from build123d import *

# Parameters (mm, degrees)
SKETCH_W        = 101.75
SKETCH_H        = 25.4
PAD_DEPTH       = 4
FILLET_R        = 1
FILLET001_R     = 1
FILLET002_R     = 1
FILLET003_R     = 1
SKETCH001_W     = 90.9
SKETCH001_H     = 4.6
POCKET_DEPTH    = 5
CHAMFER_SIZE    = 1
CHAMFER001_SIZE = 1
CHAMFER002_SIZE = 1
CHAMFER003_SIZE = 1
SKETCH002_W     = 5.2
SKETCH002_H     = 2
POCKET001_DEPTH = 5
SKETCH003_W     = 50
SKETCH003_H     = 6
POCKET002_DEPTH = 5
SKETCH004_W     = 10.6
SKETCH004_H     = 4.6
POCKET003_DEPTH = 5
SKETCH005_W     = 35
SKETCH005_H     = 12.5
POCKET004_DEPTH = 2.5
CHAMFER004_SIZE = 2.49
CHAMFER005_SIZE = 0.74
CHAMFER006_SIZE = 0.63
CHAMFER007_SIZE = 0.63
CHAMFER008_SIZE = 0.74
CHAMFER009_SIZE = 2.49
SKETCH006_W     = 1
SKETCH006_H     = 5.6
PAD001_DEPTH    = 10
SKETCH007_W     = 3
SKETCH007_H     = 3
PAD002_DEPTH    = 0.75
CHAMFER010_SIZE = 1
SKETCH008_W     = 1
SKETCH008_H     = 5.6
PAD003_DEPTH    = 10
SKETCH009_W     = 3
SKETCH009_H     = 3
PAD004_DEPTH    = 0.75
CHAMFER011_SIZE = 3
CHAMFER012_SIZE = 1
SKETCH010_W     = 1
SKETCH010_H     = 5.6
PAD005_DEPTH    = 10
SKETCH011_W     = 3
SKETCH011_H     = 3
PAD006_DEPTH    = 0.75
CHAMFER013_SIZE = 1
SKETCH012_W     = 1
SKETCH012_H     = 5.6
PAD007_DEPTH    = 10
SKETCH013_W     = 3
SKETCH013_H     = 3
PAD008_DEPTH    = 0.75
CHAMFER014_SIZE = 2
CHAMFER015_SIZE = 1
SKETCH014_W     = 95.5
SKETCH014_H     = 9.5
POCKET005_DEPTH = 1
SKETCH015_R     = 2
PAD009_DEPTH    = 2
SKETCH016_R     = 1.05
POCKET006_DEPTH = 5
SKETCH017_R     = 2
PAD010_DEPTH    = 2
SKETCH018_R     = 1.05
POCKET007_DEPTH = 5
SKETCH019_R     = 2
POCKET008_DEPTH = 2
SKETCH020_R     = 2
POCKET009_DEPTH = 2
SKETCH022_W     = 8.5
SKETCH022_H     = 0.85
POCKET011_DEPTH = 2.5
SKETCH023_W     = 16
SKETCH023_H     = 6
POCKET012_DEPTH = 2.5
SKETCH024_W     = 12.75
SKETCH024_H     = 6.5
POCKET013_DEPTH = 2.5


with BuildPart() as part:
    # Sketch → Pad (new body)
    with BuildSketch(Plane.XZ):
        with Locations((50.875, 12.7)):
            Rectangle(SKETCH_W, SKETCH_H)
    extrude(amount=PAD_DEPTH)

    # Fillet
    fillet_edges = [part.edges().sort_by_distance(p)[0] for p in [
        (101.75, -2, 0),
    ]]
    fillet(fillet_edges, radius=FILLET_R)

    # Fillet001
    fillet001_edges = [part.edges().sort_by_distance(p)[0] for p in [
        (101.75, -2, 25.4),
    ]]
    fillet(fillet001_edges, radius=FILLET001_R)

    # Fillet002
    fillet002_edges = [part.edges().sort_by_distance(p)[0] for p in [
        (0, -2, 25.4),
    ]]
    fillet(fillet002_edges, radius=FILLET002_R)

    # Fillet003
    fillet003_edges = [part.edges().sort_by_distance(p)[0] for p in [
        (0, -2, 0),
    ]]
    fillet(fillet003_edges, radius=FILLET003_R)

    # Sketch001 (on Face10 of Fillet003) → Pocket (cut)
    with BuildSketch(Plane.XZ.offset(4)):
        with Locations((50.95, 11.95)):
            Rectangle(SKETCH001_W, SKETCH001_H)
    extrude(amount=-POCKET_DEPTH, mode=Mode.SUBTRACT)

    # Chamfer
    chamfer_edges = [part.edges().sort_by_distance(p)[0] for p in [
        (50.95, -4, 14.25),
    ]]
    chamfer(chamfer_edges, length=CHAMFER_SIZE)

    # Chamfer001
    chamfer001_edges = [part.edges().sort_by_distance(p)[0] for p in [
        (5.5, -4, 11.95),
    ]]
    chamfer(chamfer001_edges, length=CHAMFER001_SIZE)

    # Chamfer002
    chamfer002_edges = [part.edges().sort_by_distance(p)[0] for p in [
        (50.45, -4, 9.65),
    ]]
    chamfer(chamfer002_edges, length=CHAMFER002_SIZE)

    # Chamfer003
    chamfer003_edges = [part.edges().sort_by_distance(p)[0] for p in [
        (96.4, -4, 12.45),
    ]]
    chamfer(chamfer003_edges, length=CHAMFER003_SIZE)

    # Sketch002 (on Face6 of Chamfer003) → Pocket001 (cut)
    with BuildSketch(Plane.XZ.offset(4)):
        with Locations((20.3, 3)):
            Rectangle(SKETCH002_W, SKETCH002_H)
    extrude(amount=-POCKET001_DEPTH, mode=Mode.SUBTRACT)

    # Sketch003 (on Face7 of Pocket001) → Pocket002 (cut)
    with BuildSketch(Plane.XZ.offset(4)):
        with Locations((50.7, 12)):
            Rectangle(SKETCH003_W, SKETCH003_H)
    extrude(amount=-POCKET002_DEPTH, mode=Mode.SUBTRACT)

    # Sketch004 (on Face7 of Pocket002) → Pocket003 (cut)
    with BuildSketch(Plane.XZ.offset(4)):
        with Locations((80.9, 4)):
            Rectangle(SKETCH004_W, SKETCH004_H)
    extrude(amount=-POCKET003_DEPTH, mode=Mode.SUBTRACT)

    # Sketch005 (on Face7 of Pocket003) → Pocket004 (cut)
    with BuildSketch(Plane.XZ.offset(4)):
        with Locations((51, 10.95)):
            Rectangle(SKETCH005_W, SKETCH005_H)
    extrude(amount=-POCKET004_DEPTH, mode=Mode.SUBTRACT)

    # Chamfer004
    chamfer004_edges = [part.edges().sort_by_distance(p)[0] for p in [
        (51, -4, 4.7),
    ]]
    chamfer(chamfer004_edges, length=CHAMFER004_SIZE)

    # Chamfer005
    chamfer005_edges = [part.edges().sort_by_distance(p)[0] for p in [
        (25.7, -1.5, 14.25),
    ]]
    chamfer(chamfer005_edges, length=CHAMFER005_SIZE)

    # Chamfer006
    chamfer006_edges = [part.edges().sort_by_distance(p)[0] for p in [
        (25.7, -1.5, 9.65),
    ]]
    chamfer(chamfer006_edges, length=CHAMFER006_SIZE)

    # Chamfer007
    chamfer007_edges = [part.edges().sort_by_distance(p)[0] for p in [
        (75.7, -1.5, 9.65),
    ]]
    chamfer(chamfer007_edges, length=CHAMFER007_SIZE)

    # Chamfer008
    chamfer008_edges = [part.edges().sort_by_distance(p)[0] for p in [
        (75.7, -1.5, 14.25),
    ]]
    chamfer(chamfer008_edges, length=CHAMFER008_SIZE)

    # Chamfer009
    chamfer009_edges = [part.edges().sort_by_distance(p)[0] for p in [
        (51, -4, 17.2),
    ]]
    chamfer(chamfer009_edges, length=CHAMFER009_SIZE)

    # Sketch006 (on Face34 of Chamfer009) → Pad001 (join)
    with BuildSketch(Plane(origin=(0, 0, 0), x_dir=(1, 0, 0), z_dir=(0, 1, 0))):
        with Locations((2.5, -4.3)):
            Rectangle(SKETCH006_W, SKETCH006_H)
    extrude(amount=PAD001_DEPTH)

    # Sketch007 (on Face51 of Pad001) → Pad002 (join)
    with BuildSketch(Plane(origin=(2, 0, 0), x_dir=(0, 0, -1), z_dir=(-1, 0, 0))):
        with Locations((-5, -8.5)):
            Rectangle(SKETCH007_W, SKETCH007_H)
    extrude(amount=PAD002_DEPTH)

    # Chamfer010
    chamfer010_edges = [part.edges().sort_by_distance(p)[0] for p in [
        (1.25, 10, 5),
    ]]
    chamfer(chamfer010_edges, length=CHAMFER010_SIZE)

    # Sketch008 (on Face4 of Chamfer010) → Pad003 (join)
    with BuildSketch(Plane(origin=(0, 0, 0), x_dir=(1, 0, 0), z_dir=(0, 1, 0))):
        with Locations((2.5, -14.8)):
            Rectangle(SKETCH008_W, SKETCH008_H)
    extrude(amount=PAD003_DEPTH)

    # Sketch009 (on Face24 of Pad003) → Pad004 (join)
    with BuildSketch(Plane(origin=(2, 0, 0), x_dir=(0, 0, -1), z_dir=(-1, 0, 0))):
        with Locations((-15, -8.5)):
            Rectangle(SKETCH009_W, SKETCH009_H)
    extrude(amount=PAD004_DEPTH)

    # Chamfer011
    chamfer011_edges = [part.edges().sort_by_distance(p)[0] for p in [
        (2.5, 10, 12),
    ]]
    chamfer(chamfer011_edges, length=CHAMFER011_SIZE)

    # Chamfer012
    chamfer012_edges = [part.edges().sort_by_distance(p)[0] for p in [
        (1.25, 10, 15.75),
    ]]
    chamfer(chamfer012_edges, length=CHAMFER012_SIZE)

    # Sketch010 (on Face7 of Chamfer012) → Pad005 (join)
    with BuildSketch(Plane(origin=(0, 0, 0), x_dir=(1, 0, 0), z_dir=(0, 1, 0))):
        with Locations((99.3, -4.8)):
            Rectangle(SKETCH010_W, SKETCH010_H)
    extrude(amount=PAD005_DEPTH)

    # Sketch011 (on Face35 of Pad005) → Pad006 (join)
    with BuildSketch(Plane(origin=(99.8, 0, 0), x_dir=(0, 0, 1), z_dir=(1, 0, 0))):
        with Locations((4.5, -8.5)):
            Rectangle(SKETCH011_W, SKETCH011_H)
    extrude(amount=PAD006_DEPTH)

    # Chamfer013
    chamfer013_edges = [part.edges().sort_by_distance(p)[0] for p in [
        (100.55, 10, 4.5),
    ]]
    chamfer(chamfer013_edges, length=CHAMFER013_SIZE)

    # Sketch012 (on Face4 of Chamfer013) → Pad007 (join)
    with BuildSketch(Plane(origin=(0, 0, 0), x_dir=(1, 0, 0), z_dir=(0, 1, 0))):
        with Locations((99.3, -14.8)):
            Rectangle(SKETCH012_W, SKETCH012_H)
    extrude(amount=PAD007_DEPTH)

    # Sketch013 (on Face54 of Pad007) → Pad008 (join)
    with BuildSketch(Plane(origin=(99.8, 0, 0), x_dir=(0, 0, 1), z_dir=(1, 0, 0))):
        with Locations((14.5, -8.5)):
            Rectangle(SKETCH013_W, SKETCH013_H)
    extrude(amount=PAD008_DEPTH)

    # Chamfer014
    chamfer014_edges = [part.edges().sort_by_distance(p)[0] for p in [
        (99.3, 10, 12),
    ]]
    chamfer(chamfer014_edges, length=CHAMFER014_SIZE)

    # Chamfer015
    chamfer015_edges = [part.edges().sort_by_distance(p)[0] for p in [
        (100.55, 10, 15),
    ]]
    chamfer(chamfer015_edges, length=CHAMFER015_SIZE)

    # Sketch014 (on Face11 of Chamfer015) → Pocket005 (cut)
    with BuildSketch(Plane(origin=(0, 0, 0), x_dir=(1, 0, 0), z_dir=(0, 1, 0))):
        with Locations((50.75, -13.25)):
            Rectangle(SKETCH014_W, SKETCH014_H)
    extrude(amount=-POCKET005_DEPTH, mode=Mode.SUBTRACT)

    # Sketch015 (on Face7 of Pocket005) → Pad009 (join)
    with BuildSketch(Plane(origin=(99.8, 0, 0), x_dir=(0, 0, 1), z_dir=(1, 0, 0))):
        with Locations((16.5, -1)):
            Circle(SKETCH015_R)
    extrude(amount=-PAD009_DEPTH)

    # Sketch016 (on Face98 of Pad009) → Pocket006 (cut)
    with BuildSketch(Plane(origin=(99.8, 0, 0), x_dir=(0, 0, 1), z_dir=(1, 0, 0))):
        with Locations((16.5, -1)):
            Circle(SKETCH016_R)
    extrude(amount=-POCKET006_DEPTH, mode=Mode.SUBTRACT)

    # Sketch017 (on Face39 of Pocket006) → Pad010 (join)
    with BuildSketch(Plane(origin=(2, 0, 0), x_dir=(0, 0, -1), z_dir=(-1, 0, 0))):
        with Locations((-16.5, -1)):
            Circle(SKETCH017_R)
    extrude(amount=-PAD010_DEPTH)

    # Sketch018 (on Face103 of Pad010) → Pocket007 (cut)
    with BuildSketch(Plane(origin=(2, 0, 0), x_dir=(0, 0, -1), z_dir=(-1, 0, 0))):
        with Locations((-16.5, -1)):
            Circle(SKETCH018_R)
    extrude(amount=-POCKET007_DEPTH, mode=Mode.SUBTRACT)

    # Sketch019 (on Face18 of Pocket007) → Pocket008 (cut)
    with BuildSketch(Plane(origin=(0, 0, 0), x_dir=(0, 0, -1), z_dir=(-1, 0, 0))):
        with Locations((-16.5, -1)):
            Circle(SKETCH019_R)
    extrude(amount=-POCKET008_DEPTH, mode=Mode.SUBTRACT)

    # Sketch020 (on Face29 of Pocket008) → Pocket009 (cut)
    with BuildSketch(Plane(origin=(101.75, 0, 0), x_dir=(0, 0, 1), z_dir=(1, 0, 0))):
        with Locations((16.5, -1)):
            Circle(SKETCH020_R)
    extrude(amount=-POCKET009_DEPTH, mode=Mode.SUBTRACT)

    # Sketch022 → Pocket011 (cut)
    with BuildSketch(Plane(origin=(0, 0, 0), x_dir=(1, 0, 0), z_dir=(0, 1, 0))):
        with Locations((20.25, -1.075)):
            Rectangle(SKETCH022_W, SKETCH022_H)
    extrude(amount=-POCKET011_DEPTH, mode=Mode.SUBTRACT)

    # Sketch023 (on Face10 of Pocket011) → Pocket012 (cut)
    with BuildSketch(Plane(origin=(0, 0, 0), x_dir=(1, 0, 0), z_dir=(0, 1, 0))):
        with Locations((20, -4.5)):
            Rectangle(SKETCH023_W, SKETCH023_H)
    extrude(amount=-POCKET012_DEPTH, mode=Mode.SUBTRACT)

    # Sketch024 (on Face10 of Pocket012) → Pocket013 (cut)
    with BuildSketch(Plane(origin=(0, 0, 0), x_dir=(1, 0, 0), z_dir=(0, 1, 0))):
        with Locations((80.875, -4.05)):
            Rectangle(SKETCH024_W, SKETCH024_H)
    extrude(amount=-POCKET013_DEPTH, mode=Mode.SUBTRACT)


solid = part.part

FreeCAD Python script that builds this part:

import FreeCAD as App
import Part
import Sketcher
from FreeCAD import Vector


def edges_at(feature, points):
    """Names of the edges that pass closest to the given points."""
    edges = feature.Shape.Edges
    near = lambda p: min(range(len(edges)), key=lambda i: edges[i].distToShape(Part.Vertex(*p))[0])
    return sorted({f"Edge{near(p) + 1}" for p in points})

doc = App.newDocument("Part")
body = doc.addObject("PartDesign::Body", "Body")

# Sketch on XZ plane
sketch1 = body.newObject("Sketcher::SketchObject", "Sketch")
sketch1.AttachmentSupport = (doc.getObject("XZ_Plane"), [""])
sketch1.MapMode = "FlatFace"
sketch1.addGeometry([
    Part.LineSegment(Vector(0, 25.4, 0), Vector(0, 0, 0)),
    Part.LineSegment(Vector(0, 0, 0), Vector(101.75, 0, 0)),
    Part.LineSegment(Vector(101.75, 0, 0), Vector(101.75, 25.4, 0)),
    Part.LineSegment(Vector(101.75, 25.4, 0), Vector(0, 25.4, 0)),
], False)
sketch1.addConstraint([
    Sketcher.Constraint("Coincident", 0, 2, 1, 1),
    Sketcher.Constraint("Coincident", 1, 2, 2, 1),
    Sketcher.Constraint("Coincident", 2, 2, 3, 1),
    Sketcher.Constraint("Coincident", 3, 2, 0, 1),
    Sketcher.Constraint("Vertical", 0),
    Sketcher.Constraint("Horizontal", 1),
    Sketcher.Constraint("Vertical", 2),
    Sketcher.Constraint("Horizontal", 3),
    Sketcher.Constraint("Coincident", 0, 2, -1, 1),
    Sketcher.Constraint("DistanceY", 0, 2, 0, 1, 25.4),
    Sketcher.Constraint("DistanceX", 1, 1, 1, 2, 101.75),
])
pad1 = body.newObject("PartDesign::Pad", "Pad")
pad1.Profile = sketch1
pad1.Length = 4
doc.recompute()

fillet = body.newObject("PartDesign::Fillet", "Fillet")
fillet.Base = (pad1, edges_at(pad1, [(101.75, -2, 0)]))
fillet.Radius = 1
doc.recompute()

fillet2 = body.newObject("PartDesign::Fillet", "Fillet001")
fillet2.Base = (fillet, edges_at(fillet, [(101.75, -2, 25.4)]))
fillet2.Radius = 1
doc.recompute()

fillet3 = body.newObject("PartDesign::Fillet", "Fillet002")
fillet3.Base = (fillet2, edges_at(fillet2, [(0, -2, 25.4)]))
fillet3.Radius = 1
doc.recompute()

fillet4 = body.newObject("PartDesign::Fillet", "Fillet003")
fillet4.Base = (fillet3, edges_at(fillet3, [(0, -2, 0)]))
fillet4.Radius = 1

# Sketch on XZ plane
sketch2 = body.newObject("Sketcher::SketchObject", "Sketch001")
sketch2.AttachmentSupport = (doc.getObject("XZ_Plane"), [""])
sketch2.MapMode = "FlatFace"
sketch2.AttachmentOffset = App.Placement(Vector(0, 0, 4), App.Rotation())
sketch2.addGeometry([
    Part.LineSegment(Vector(5.5, 14.25, 0), Vector(5.5, 9.65, 0)),
    Part.LineSegment(Vector(5.5, 9.65, 0), Vector(96.4, 9.65, 0)),
    Part.LineSegment(Vector(96.4, 9.65, 0), Vector(96.4, 14.25, 0)),
    Part.LineSegment(Vector(96.4, 14.25, 0), Vector(5.5, 14.25, 0)),
], False)
sketch2.addConstraint([
    Sketcher.Constraint("Coincident", 0, 2, 1, 1),
    Sketcher.Constraint("Coincident", 1, 2, 2, 1),
    Sketcher.Constraint("Coincident", 2, 2, 3, 1),
    Sketcher.Constraint("Coincident", 3, 2, 0, 1),
    Sketcher.Constraint("Vertical", 0),
    Sketcher.Constraint("Horizontal", 1),
    Sketcher.Constraint("Vertical", 2),
    Sketcher.Constraint("Horizontal", 3),
    Sketcher.Constraint("DistanceX", 1, 1, 1, 2, 90.9),
    Sketcher.Constraint("DistanceY", 0, 2, 0, 1, 4.6),
    Sketcher.Constraint("DistanceX", -1, 1, 0, 2, 5.5),
    Sketcher.Constraint("DistanceY", -1, 1, 0, 2, 9.65),
])
pocket1 = body.newObject("PartDesign::Pocket", "Pocket")
pocket1.Profile = sketch2
pocket1.Length = 5
doc.recompute()

chamfer = body.newObject("PartDesign::Chamfer", "Chamfer")
chamfer.Base = (pocket1, edges_at(pocket1, [(50.95, -4, 14.25)]))
chamfer.Size = 1
doc.recompute()

chamfer2 = body.newObject("PartDesign::Chamfer", "Chamfer001")
chamfer2.Base = (chamfer, edges_at(chamfer, [(5.5, -4, 12.45)]))
chamfer2.Size = 1
doc.recompute()

chamfer3 = body.newObject("PartDesign::Chamfer", "Chamfer002")
chamfer3.Base = (chamfer2, edges_at(chamfer2, [(50.45, -4, 9.65)]))
chamfer3.Size = 1
doc.recompute()

chamfer4 = body.newObject("PartDesign::Chamfer", "Chamfer003")
chamfer4.Base = (chamfer3, edges_at(chamfer3, [(96.4, -4, 11.95)]))
chamfer4.Size = 1

# Sketch on XZ plane
sketch3 = body.newObject("Sketcher::SketchObject", "Sketch002")
sketch3.AttachmentSupport = (doc.getObject("XZ_Plane"), [""])
sketch3.MapMode = "FlatFace"
sketch3.AttachmentOffset = App.Placement(Vector(0, 0, 4), App.Rotation())
sketch3.addGeometry([
    Part.LineSegment(Vector(17.7, 4, 0), Vector(17.7, 2, 0)),
    Part.LineSegment(Vector(17.7, 2, 0), Vector(22.9, 2, 0)),
    Part.LineSegment(Vector(22.9, 2, 0), Vector(22.9, 4, 0)),
    Part.LineSegment(Vector(22.9, 4, 0), Vector(17.7, 4, 0)),
], False)
sketch3.addConstraint([
    Sketcher.Constraint("Coincident", 0, 2, 1, 1),
    Sketcher.Constraint("Coincident", 1, 2, 2, 1),
    Sketcher.Constraint("Coincident", 2, 2, 3, 1),
    Sketcher.Constraint("Coincident", 3, 2, 0, 1),
    Sketcher.Constraint("Vertical", 0),
    Sketcher.Constraint("Horizontal", 1),
    Sketcher.Constraint("Vertical", 2),
    Sketcher.Constraint("Horizontal", 3),
    Sketcher.Constraint("DistanceY", 0, 2, 0, 1, 2.0),
    Sketcher.Constraint("DistanceX", 1, 1, 1, 2, 5.2),
    Sketcher.Constraint("DistanceY", -1, 1, 0, 2, 2.0),
    Sketcher.Constraint("DistanceX", -1, 1, 0, 2, 17.7),
])
pocket2 = body.newObject("PartDesign::Pocket", "Pocket001")
pocket2.Profile = sketch3
pocket2.Length = 5

# Sketch on XZ plane
sketch4 = body.newObject("Sketcher::SketchObject", "Sketch003")
sketch4.AttachmentSupport = (doc.getObject("XZ_Plane"), [""])
sketch4.MapMode = "FlatFace"
sketch4.AttachmentOffset = App.Placement(Vector(0, 0, 4), App.Rotation())
sketch4.addGeometry([
    Part.LineSegment(Vector(25.7, 15, 0), Vector(25.7, 9, 0)),
    Part.LineSegment(Vector(25.7, 9, 0), Vector(75.7, 9, 0)),
    Part.LineSegment(Vector(75.7, 9, 0), Vector(75.7, 15, 0)),
    Part.LineSegment(Vector(75.7, 15, 0), Vector(25.7, 15, 0)),
], False)
sketch4.addConstraint([
    Sketcher.Constraint("Coincident", 0, 2, 1, 1),
    Sketcher.Constraint("Coincident", 1, 2, 2, 1),
    Sketcher.Constraint("Coincident", 2, 2, 3, 1),
    Sketcher.Constraint("Coincident", 3, 2, 0, 1),
    Sketcher.Constraint("Vertical", 0),
    Sketcher.Constraint("Horizontal", 1),
    Sketcher.Constraint("Vertical", 2),
    Sketcher.Constraint("Horizontal", 3),
    Sketcher.Constraint("DistanceX", 1, 1, 1, 2, 50.0),
    Sketcher.Constraint("DistanceY", 0, 2, 0, 1, 6.0),
    Sketcher.Constraint("DistanceY", -1, 1, 0, 2, 9.0),
    Sketcher.Constraint("DistanceX", -1, 1, 0, 2, 25.7),
])
pocket3 = body.newObject("PartDesign::Pocket", "Pocket002")
pocket3.Profile = sketch4
pocket3.Length = 5

# Sketch on XZ plane
sketch5 = body.newObject("Sketcher::SketchObject", "Sketch004")
sketch5.AttachmentSupport = (doc.getObject("XZ_Plane"), [""])
sketch5.MapMode = "FlatFace"
sketch5.AttachmentOffset = App.Placement(Vector(0, 0, 4), App.Rotation())
sketch5.addGeometry([
    Part.LineSegment(Vector(75.6, 6.3, 0), Vector(75.6, 1.7, 0)),
    Part.LineSegment(Vector(75.6, 1.7, 0), Vector(86.2, 1.7, 0)),
    Part.LineSegment(Vector(86.2, 1.7, 0), Vector(86.2, 6.3, 0)),
    Part.LineSegment(Vector(86.2, 6.3, 0), Vector(75.6, 6.3, 0)),
], False)
sketch5.addConstraint([
    Sketcher.Constraint("Coincident", 0, 2, 1, 1),
    Sketcher.Constraint("Coincident", 1, 2, 2, 1),
    Sketcher.Constraint("Coincident", 2, 2, 3, 1),
    Sketcher.Constraint("Coincident", 3, 2, 0, 1),
    Sketcher.Constraint("Vertical", 0),
    Sketcher.Constraint("Horizontal", 1),
    Sketcher.Constraint("Vertical", 2),
    Sketcher.Constraint("Horizontal", 3),
    Sketcher.Constraint("DistanceX", 1, 1, 1, 2, 10.6),
    Sketcher.Constraint("DistanceY", 0, 2, 0, 1, 4.6),
    Sketcher.Constraint("DistanceX", -1, 1, 0, 2, 75.6),
    Sketcher.Constraint("DistanceY", -1, 1, 0, 2, 1.7),
])
pocket4 = body.newObject("PartDesign::Pocket", "Pocket003")
pocket4.Profile = sketch5
pocket4.Length = 5

# Sketch on XZ plane
sketch6 = body.newObject("Sketcher::SketchObject", "Sketch005")
sketch6.AttachmentSupport = (doc.getObject("XZ_Plane"), [""])
sketch6.MapMode = "FlatFace"
sketch6.AttachmentOffset = App.Placement(Vector(0, 0, 4), App.Rotation())
sketch6.addGeometry([
    Part.LineSegment(Vector(33.5, 17.2, 0), Vector(33.5, 4.7, 0)),
    Part.LineSegment(Vector(33.5, 4.7, 0), Vector(68.5, 4.7, 0)),
    Part.LineSegment(Vector(68.5, 4.7, 0), Vector(68.5, 17.2, 0)),
    Part.LineSegment(Vector(68.5, 17.2, 0), Vector(33.5, 17.2, 0)),
], False)
sketch6.addConstraint([
    Sketcher.Constraint("Coincident", 0, 2, 1, 1),
    Sketcher.Constraint("Coincident", 1, 2, 2, 1),
    Sketcher.Constraint("Coincident", 2, 2, 3, 1),
    Sketcher.Constraint("Coincident", 3, 2, 0, 1),
    Sketcher.Constraint("Vertical", 0),
    Sketcher.Constraint("Horizontal", 1),
    Sketcher.Constraint("Vertical", 2),
    Sketcher.Constraint("Horizontal", 3),
    Sketcher.Constraint("DistanceX", 1, 1, 1, 2, 35.0),
    Sketcher.Constraint("DistanceY", 0, 2, 0, 1, 12.5),
    Sketcher.Constraint("DistanceX", -1, 1, 0, 2, 33.5),
    Sketcher.Constraint("DistanceY", -1, 1, 0, 2, 4.7),
])
pocket5 = body.newObject("PartDesign::Pocket", "Pocket004")
pocket5.Profile = sketch6
pocket5.Length = 2.5
doc.recompute()

chamfer5 = body.newObject("PartDesign::Chamfer", "Chamfer004")
chamfer5.Base = (pocket5, edges_at(pocket5, [(51, -4, 4.7)]))
chamfer5.Size = 2.49
doc.recompute()

chamfer6 = body.newObject("PartDesign::Chamfer", "Chamfer005")
chamfer6.Base = (chamfer5, edges_at(chamfer5, [(25.7, -1.5, 14.25)]))
chamfer6.Size = 0.74
doc.recompute()

chamfer7 = body.newObject("PartDesign::Chamfer", "Chamfer006")
chamfer7.Base = (chamfer6, edges_at(chamfer6, [(25.7, -1.5, 9.65)]))
chamfer7.Size = 0.63
doc.recompute()

chamfer8 = body.newObject("PartDesign::Chamfer", "Chamfer007")
chamfer8.Base = (chamfer7, edges_at(chamfer7, [(75.7, -1.5, 9.65)]))
chamfer8.Size = 0.63
doc.recompute()

chamfer9 = body.newObject("PartDesign::Chamfer", "Chamfer008")
chamfer9.Base = (chamfer8, edges_at(chamfer8, [(75.7, -1.5, 14.25)]))
chamfer9.Size = 0.74
doc.recompute()

chamfer10 = body.newObject("PartDesign::Chamfer", "Chamfer009")
chamfer10.Base = (chamfer9, edges_at(chamfer9, [(51, -4, 17.2)]))
chamfer10.Size = 2.49

# Sketch on XZ plane
sketch7 = body.newObject("Sketcher::SketchObject", "Sketch006")
sketch7.AttachmentSupport = (doc.getObject("XZ_Plane"), [""])
sketch7.MapMode = "FlatFace"
sketch7.addGeometry([
    Part.LineSegment(Vector(2, 1.5, 0), Vector(2, 7.1, 0)),
    Part.LineSegment(Vector(2, 7.1, 0), Vector(3, 7.1, 0)),
    Part.LineSegment(Vector(3, 7.1, 0), Vector(3, 1.5, 0)),
    Part.LineSegment(Vector(3, 1.5, 0), Vector(2, 1.5, 0)),
], False)
sketch7.addConstraint([
    Sketcher.Constraint("Coincident", 0, 2, 1, 1),
    Sketcher.Constraint("Coincident", 1, 2, 2, 1),
    Sketcher.Constraint("Coincident", 2, 2, 3, 1),
    Sketcher.Constraint("Coincident", 3, 2, 0, 1),
    Sketcher.Constraint("Vertical", 0),
    Sketcher.Constraint("Horizontal", 1),
    Sketcher.Constraint("Vertical", 2),
    Sketcher.Constraint("Horizontal", 3),
    Sketcher.Constraint("DistanceX", 1, 1, 1, 2, 1.0),
    Sketcher.Constraint("DistanceY", 0, 1, 0, 2, 5.6),
    Sketcher.Constraint("DistanceX", -1, 1, 0, 2, 2.0),
    Sketcher.Constraint("DistanceY", -1, 1, 0, 2, 7.1),
])
pad2 = body.newObject("PartDesign::Pad", "Pad001")
pad2.Profile = sketch7
pad2.Length = 10
pad2.Reversed = True

# Sketch on YZ plane
sketch8 = body.newObject("Sketcher::SketchObject", "Sketch007")
sketch8.AttachmentSupport = (doc.getObject("YZ_Plane"), [""])
sketch8.MapMode = "FlatFace"
sketch8.AttachmentOffset = App.Placement(Vector(0, 0, 2), App.Rotation())
sketch8.addGeometry([
    Part.LineSegment(Vector(7, 6.5, 0), Vector(10, 6.5, 0)),
    Part.LineSegment(Vector(10, 6.5, 0), Vector(10, 3.5, 0)),
    Part.LineSegment(Vector(10, 3.5, 0), Vector(7, 3.5, 0)),
    Part.LineSegment(Vector(7, 3.5, 0), Vector(7, 6.5, 0)),
], False)
sketch8.addConstraint([
    Sketcher.Constraint("Coincident", 0, 2, 1, 1),
    Sketcher.Constraint("Coincident", 1, 2, 2, 1),
    Sketcher.Constraint("Coincident", 2, 2, 3, 1),
    Sketcher.Constraint("Coincident", 3, 2, 0, 1),
    Sketcher.Constraint("Horizontal", 0),
    Sketcher.Constraint("Vertical", 1),
    Sketcher.Constraint("Horizontal", 2),
    Sketcher.Constraint("Vertical", 3),
    Sketcher.Constraint("Equal", 2, 1),
    Sketcher.Constraint("DistanceX", 0, 1, 0, 2, 3.0),
    Sketcher.Constraint("DistanceX", -1, 1, 0, 2, 10.0),
    Sketcher.Constraint("DistanceY", -1, 1, 0, 2, 6.5),
])
pad3 = body.newObject("PartDesign::Pad", "Pad002")
pad3.Profile = sketch8
pad3.Length = 0.75
pad3.Reversed = True
doc.recompute()

chamfer11 = body.newObject("PartDesign::Chamfer", "Chamfer010")
chamfer11.Base = (pad3, edges_at(pad3, [(1.25, 10, 5)]))
chamfer11.Size = 1

# Sketch on XZ plane
sketch9 = body.newObject("Sketcher::SketchObject", "Sketch008")
sketch9.AttachmentSupport = (doc.getObject("XZ_Plane"), [""])
sketch9.MapMode = "FlatFace"
sketch9.addGeometry([
    Part.LineSegment(Vector(2, 12, 0), Vector(2, 17.6, 0)),
    Part.LineSegment(Vector(2, 17.6, 0), Vector(3, 17.6, 0)),
    Part.LineSegment(Vector(3, 17.6, 0), Vector(3, 12, 0)),
    Part.LineSegment(Vector(3, 12, 0), Vector(2, 12, 0)),
], False)
sketch9.addConstraint([
    Sketcher.Constraint("Coincident", 0, 2, 1, 1),
    Sketcher.Constraint("Coincident", 1, 2, 2, 1),
    Sketcher.Constraint("Coincident", 2, 2, 3, 1),
    Sketcher.Constraint("Coincident", 3, 2, 0, 1),
    Sketcher.Constraint("Vertical", 0),
    Sketcher.Constraint("Horizontal", 1),
    Sketcher.Constraint("Vertical", 2),
    Sketcher.Constraint("Horizontal", 3),
    Sketcher.Constraint("DistanceX", 1, 1, 1, 2, 1.0),
    Sketcher.Constraint("DistanceY", 0, 1, 0, 2, 5.6),
    Sketcher.Constraint("DistanceX", -1, 1, 0, 2, 2.0),
    Sketcher.Constraint("DistanceY", -1, 1, 2, 2, 12.0),
])
pad4 = body.newObject("PartDesign::Pad", "Pad003")
pad4.Profile = sketch9
pad4.Length = 10
pad4.Reversed = True

# Sketch on YZ plane
sketch10 = body.newObject("Sketcher::SketchObject", "Sketch009")
sketch10.AttachmentSupport = (doc.getObject("YZ_Plane"), [""])
sketch10.MapMode = "FlatFace"
sketch10.AttachmentOffset = App.Placement(Vector(0, 0, 2), App.Rotation())
sketch10.addGeometry([
    Part.LineSegment(Vector(7, 16.5, 0), Vector(10, 16.5, 0)),
    Part.LineSegment(Vector(10, 16.5, 0), Vector(10, 13.5, 0)),
    Part.LineSegment(Vector(10, 13.5, 0), Vector(7, 13.5, 0)),
    Part.LineSegment(Vector(7, 13.5, 0), Vector(7, 16.5, 0)),
], False)
sketch10.addConstraint([
    Sketcher.Constraint("Coincident", 0, 2, 1, 1),
    Sketcher.Constraint("Coincident", 1, 2, 2, 1),
    Sketcher.Constraint("Coincident", 2, 2, 3, 1),
    Sketcher.Constraint("Coincident", 3, 2, 0, 1),
    Sketcher.Constraint("Horizontal", 0),
    Sketcher.Constraint("Vertical", 1),
    Sketcher.Constraint("Horizontal", 2),
    Sketcher.Constraint("Vertical", 3),
    Sketcher.Constraint("Equal", 2, 1),
    Sketcher.Constraint("DistanceX", 0, 1, 0, 2, 3.0),
    Sketcher.Constraint("DistanceX", -1, 1, 0, 2, 10.0),
    Sketcher.Constraint("DistanceY", -1, 1, 0, 2, 16.5),
])
pad5 = body.newObject("PartDesign::Pad", "Pad004")
pad5.Profile = sketch10
pad5.Length = 0.75
pad5.Reversed = True
doc.recompute()

chamfer12 = body.newObject("PartDesign::Chamfer", "Chamfer011")
chamfer12.Base = (pad5, edges_at(pad5, [(2.5, 10, 12)]))
chamfer12.Size = 3
doc.recompute()

chamfer13 = body.newObject("PartDesign::Chamfer", "Chamfer012")
chamfer13.Base = (chamfer12, edges_at(chamfer12, [(1.25, 10, 15.75)]))
chamfer13.Size = 1

# Sketch on XZ plane
sketch11 = body.newObject("Sketcher::SketchObject", "Sketch010")
sketch11.AttachmentSupport = (doc.getObject("XZ_Plane"), [""])
sketch11.MapMode = "FlatFace"
sketch11.addGeometry([
    Part.LineSegment(Vector(98.8, 2, 0), Vector(98.8, 7.6, 0)),
    Part.LineSegment(Vector(98.8, 7.6, 0), Vector(99.8, 7.6, 0)),
    Part.LineSegment(Vector(99.8, 7.6, 0), Vector(99.8, 2, 0)),
    Part.LineSegment(Vector(99.8, 2, 0), Vector(98.8, 2, 0)),
], False)
sketch11.addConstraint([
    Sketcher.Constraint("Coincident", 0, 2, 1, 1),
    Sketcher.Constraint("Coincident", 1, 2, 2, 1),
    Sketcher.Constraint("Coincident", 2, 2, 3, 1),
    Sketcher.Constraint("Coincident", 3, 2, 0, 1),
    Sketcher.Constraint("Vertical", 0),
    Sketcher.Constraint("Horizontal", 1),
    Sketcher.Constraint("Vertical", 2),
    Sketcher.Constraint("Horizontal", 3),
    Sketcher.Constraint("DistanceX", 1, 1, 1, 2, 1.0),
    Sketcher.Constraint("DistanceY", 0, 1, 0, 2, 5.6),
    Sketcher.Constraint("DistanceY", -1, 1, 2, 2, 2.0),
    Sketcher.Constraint("DistanceX", -1, 1, 0, 2, 98.8),
])
pad6 = body.newObject("PartDesign::Pad", "Pad005")
pad6.Profile = sketch11
pad6.Length = 10
pad6.Reversed = True

# Sketch on YZ plane
sketch12 = body.newObject("Sketcher::SketchObject", "Sketch011")
sketch12.AttachmentSupport = (doc.getObject("YZ_Plane"), [""])
sketch12.MapMode = "FlatFace"
sketch12.AttachmentOffset = App.Placement(Vector(0, 0, 99.8), App.Rotation())
sketch12.addGeometry([
    Part.LineSegment(Vector(7, 3, 0), Vector(10, 3, 0)),
    Part.LineSegment(Vector(10, 3, 0), Vector(10, 6, 0)),
    Part.LineSegment(Vector(10, 6, 0), Vector(7, 6, 0)),
    Part.LineSegment(Vector(7, 6, 0), Vector(7, 3, 0)),
], False)
sketch12.addConstraint([
    Sketcher.Constraint("Coincident", 0, 2, 1, 1),
    Sketcher.Constraint("Coincident", 1, 2, 2, 1),
    Sketcher.Constraint("Coincident", 2, 2, 3, 1),
    Sketcher.Constraint("Coincident", 3, 2, 0, 1),
    Sketcher.Constraint("Horizontal", 0),
    Sketcher.Constraint("Vertical", 1),
    Sketcher.Constraint("Horizontal", 2),
    Sketcher.Constraint("Vertical", 3),
    Sketcher.Constraint("Equal", 2, 1),
    Sketcher.Constraint("DistanceX", 0, 1, 0, 2, 3.0),
    Sketcher.Constraint("DistanceX", -1, 1, 0, 2, 10.0),
    Sketcher.Constraint("DistanceY", -1, 1, 0, 2, 3.0),
])
pad7 = body.newObject("PartDesign::Pad", "Pad006")
pad7.Profile = sketch12
pad7.Length = 0.75
doc.recompute()

chamfer14 = body.newObject("PartDesign::Chamfer", "Chamfer013")
chamfer14.Base = (pad7, edges_at(pad7, [(100.55, 10, 4.5)]))
chamfer14.Size = 1

# Sketch on XZ plane
sketch13 = body.newObject("Sketcher::SketchObject", "Sketch012")
sketch13.AttachmentSupport = (doc.getObject("XZ_Plane"), [""])
sketch13.MapMode = "FlatFace"
sketch13.addGeometry([
    Part.LineSegment(Vector(98.8, 12, 0), Vector(98.8, 17.6, 0)),
    Part.LineSegment(Vector(98.8, 17.6, 0), Vector(99.8, 17.6, 0)),
    Part.LineSegment(Vector(99.8, 17.6, 0), Vector(99.8, 12, 0)),
    Part.LineSegment(Vector(99.8, 12, 0), Vector(98.8, 12, 0)),
], False)
sketch13.addConstraint([
    Sketcher.Constraint("Coincident", 0, 2, 1, 1),
    Sketcher.Constraint("Coincident", 1, 2, 2, 1),
    Sketcher.Constraint("Coincident", 2, 2, 3, 1),
    Sketcher.Constraint("Coincident", 3, 2, 0, 1),
    Sketcher.Constraint("Vertical", 0),
    Sketcher.Constraint("Horizontal", 1),
    Sketcher.Constraint("Vertical", 2),
    Sketcher.Constraint("Horizontal", 3),
    Sketcher.Constraint("DistanceX", 1, 1, 1, 2, 1.0),
    Sketcher.Constraint("DistanceY", 0, 1, 0, 2, 5.6),
    Sketcher.Constraint("DistanceY", -1, 1, 2, 2, 12.0),
    Sketcher.Constraint("DistanceX", -1, 1, 0, 2, 98.8),
])
pad8 = body.newObject("PartDesign::Pad", "Pad007")
pad8.Profile = sketch13
pad8.Length = 10
pad8.Reversed = True

# Sketch on YZ plane
sketch14 = body.newObject("Sketcher::SketchObject", "Sketch013")
sketch14.AttachmentSupport = (doc.getObject("YZ_Plane"), [""])
sketch14.MapMode = "FlatFace"
sketch14.AttachmentOffset = App.Placement(Vector(0, 0, 99.8), App.Rotation())
sketch14.addGeometry([
    Part.LineSegment(Vector(7, 13, 0), Vector(10, 13, 0)),
    Part.LineSegment(Vector(10, 13, 0), Vector(10, 16, 0)),
    Part.LineSegment(Vector(10, 16, 0), Vector(7, 16, 0)),
    Part.LineSegment(Vector(7, 16, 0), Vector(7, 13, 0)),
], False)
sketch14.addConstraint([
    Sketcher.Constraint("Coincident", 0, 2, 1, 1),
    Sketcher.Constraint("Coincident", 1, 2, 2, 1),
    Sketcher.Constraint("Coincident", 2, 2, 3, 1),
    Sketcher.Constraint("Coincident", 3, 2, 0, 1),
    Sketcher.Constraint("Horizontal", 0),
    Sketcher.Constraint("Vertical", 1),
    Sketcher.Constraint("Horizontal", 2),
    Sketcher.Constraint("Vertical", 3),
    Sketcher.Constraint("Equal", 2, 1),
    Sketcher.Constraint("DistanceX", 0, 1, 0, 2, 3.0),
    Sketcher.Constraint("DistanceX", -1, 1, 0, 2, 10.0),
    Sketcher.Constraint("DistanceY", -1, 1, 0, 2, 13.0),
])
pad9 = body.newObject("PartDesign::Pad", "Pad008")
pad9.Profile = sketch14
pad9.Length = 0.75
doc.recompute()

chamfer15 = body.newObject("PartDesign::Chamfer", "Chamfer014")
chamfer15.Base = (pad9, edges_at(pad9, [(99.3, 10, 12)]))
chamfer15.Size = 2
doc.recompute()

chamfer16 = body.newObject("PartDesign::Chamfer", "Chamfer015")
chamfer16.Base = (chamfer15, edges_at(chamfer15, [(100.55, 10, 15)]))
chamfer16.Size = 1

# Sketch on XZ plane
sketch15 = body.newObject("Sketcher::SketchObject", "Sketch014")
sketch15.AttachmentSupport = (doc.getObject("XZ_Plane"), [""])
sketch15.MapMode = "FlatFace"
sketch15.addGeometry([
    Part.LineSegment(Vector(3, 8.5, 0), Vector(3, 18, 0)),
    Part.LineSegment(Vector(3, 18, 0), Vector(98.5, 18, 0)),
    Part.LineSegment(Vector(98.5, 18, 0), Vector(98.5, 8.5, 0)),
    Part.LineSegment(Vector(98.5, 8.5, 0), Vector(3, 8.5, 0)),
], False)
sketch15.addConstraint([
    Sketcher.Constraint("Coincident", 0, 2, 1, 1),
    Sketcher.Constraint("Coincident", 1, 2, 2, 1),
    Sketcher.Constraint("Coincident", 2, 2, 3, 1),
    Sketcher.Constraint("Coincident", 3, 2, 0, 1),
    Sketcher.Constraint("Vertical", 0),
    Sketcher.Constraint("Horizontal", 1),
    Sketcher.Constraint("Vertical", 2),
    Sketcher.Constraint("Horizontal", 3),
    Sketcher.Constraint("DistanceX", 1, 1, 1, 2, 95.5),
    Sketcher.Constraint("DistanceY", 0, 1, 0, 2, 9.5),
    Sketcher.Constraint("DistanceX", -1, 1, 0, 2, 3.0),
    Sketcher.Constraint("DistanceY", -1, 1, 0, 2, 18.0),
])
pocket6 = body.newObject("PartDesign::Pocket", "Pocket005")
pocket6.Profile = sketch15
pocket6.Length = 1
pocket6.Reversed = True

# Sketch on YZ plane
sketch16 = body.newObject("Sketcher::SketchObject", "Sketch015")
sketch16.AttachmentSupport = (doc.getObject("YZ_Plane"), [""])
sketch16.MapMode = "FlatFace"
sketch16.AttachmentOffset = App.Placement(Vector(0, 0, 99.8), App.Rotation())
sketch16.addGeometry(Part.Circle(Vector(1, 16.5, 0), Vector(0, 0, 1), 2), False)
sketch16.addConstraint([
    Sketcher.Constraint("Diameter", 0, 4.0),
    Sketcher.Constraint("DistanceX", -1, 1, 0, 3, 1.0),
    Sketcher.Constraint("DistanceY", -1, 1, 0, 3, 16.5),
])
pad10 = body.newObject("PartDesign::Pad", "Pad009")
pad10.Profile = sketch16
pad10.Length = 2
pad10.Reversed = True

# Sketch on YZ plane
sketch17 = body.newObject("Sketcher::SketchObject", "Sketch016")
sketch17.AttachmentSupport = (doc.getObject("YZ_Plane"), [""])
sketch17.MapMode = "FlatFace"
sketch17.AttachmentOffset = App.Placement(Vector(0, 0, 99.8), App.Rotation())
sketch17.addGeometry(Part.Circle(Vector(1, 16.5, 0), Vector(0, 0, 1), 1.05), False)
sketch17.addConstraint([
    Sketcher.Constraint("Diameter", 0, 2.1),
    Sketcher.Constraint("DistanceX", -1, 1, 0, 3, 1.0),
    Sketcher.Constraint("DistanceY", -1, 1, 0, 3, 16.5),
])
pocket7 = body.newObject("PartDesign::Pocket", "Pocket006")
pocket7.Profile = sketch17
pocket7.Length = 5

# Sketch on YZ plane
sketch18 = body.newObject("Sketcher::SketchObject", "Sketch017")
sketch18.AttachmentSupport = (doc.getObject("YZ_Plane"), [""])
sketch18.MapMode = "FlatFace"
sketch18.AttachmentOffset = App.Placement(Vector(0, 0, 2), App.Rotation())
sketch18.addGeometry(Part.Circle(Vector(1, 16.5, 0), Vector(0, 0, 1), 2), False)
sketch18.addConstraint([
    Sketcher.Constraint("Diameter", 0, 4.0),
    Sketcher.Constraint("DistanceX", -1, 1, 0, 3, 1.0),
    Sketcher.Constraint("DistanceY", -1, 1, 0, 3, 16.5),
])
pad11 = body.newObject("PartDesign::Pad", "Pad010")
pad11.Profile = sketch18
pad11.Length = 2

# Sketch on YZ plane
sketch19 = body.newObject("Sketcher::SketchObject", "Sketch018")
sketch19.AttachmentSupport = (doc.getObject("YZ_Plane"), [""])
sketch19.MapMode = "FlatFace"
sketch19.AttachmentOffset = App.Placement(Vector(0, 0, 2), App.Rotation())
sketch19.addGeometry(Part.Circle(Vector(1, 16.5, 0), Vector(0, 0, 1), 1.05), False)
sketch19.addConstraint([
    Sketcher.Constraint("Diameter", 0, 2.1),
    Sketcher.Constraint("DistanceX", -1, 1, 0, 3, 1.0),
    Sketcher.Constraint("DistanceY", -1, 1, 0, 3, 16.5),
])
pocket8 = body.newObject("PartDesign::Pocket", "Pocket007")
pocket8.Profile = sketch19
pocket8.Length = 5
pocket8.Reversed = True

# Sketch on YZ plane
sketch20 = body.newObject("Sketcher::SketchObject", "Sketch019")
sketch20.AttachmentSupport = (doc.getObject("YZ_Plane"), [""])
sketch20.MapMode = "FlatFace"
sketch20.addGeometry(Part.Circle(Vector(1, 16.5, 0), Vector(0, 0, 1), 2), False)
sketch20.addConstraint([
    Sketcher.Constraint("Diameter", 0, 4.0),
    Sketcher.Constraint("DistanceX", -1, 1, 0, 3, 1.0),
    Sketcher.Constraint("DistanceY", -1, 1, 0, 3, 16.5),
])
pocket9 = body.newObject("PartDesign::Pocket", "Pocket008")
pocket9.Profile = sketch20
pocket9.Length = 2
pocket9.Reversed = True

# Sketch on YZ plane
sketch21 = body.newObject("Sketcher::SketchObject", "Sketch020")
sketch21.AttachmentSupport = (doc.getObject("YZ_Plane"), [""])
sketch21.MapMode = "FlatFace"
sketch21.AttachmentOffset = App.Placement(Vector(0, 0, 101.75), App.Rotation())
sketch21.addGeometry(Part.Circle(Vector(1, 16.5, 0), Vector(0, 0, 1), 2), False)
sketch21.addConstraint([
    Sketcher.Constraint("Diameter", 0, 4.0),
    Sketcher.Constraint("DistanceX", -1, 1, 0, 3, 1.0),
    Sketcher.Constraint("DistanceY", -1, 1, 0, 3, 16.5),
])
pocket10 = body.newObject("PartDesign::Pocket", "Pocket009")
pocket10.Profile = sketch21
pocket10.Length = 2

# Sketch on XZ plane
sketch22 = body.newObject("Sketcher::SketchObject", "Sketch021")
sketch22.AttachmentSupport = (doc.getObject("XZ_Plane"), [""])
sketch22.MapMode = "FlatFace"
sketch22.addGeometry([
    Part.LineSegment(Vector(16, 0.65, 0), Vector(16, 1.5, 0)),
    Part.LineSegment(Vector(16, 1.5, 0), Vector(24.5, 1.5, 0)),
    Part.LineSegment(Vector(24.5, 1.5, 0), Vector(24.5, 0.65, 0)),
    Part.LineSegment(Vector(24.5, 0.65, 0), Vector(16, 0.65, 0)),
], False)
sketch22.addConstraint([
    Sketcher.Constraint("Coincident", 0, 2, 1, 1),
    Sketcher.Constraint("Coincident", 1, 2, 2, 1),
    Sketcher.Constraint("Coincident", 2, 2, 3, 1),
    Sketcher.Constraint("Coincident", 3, 2, 0, 1),
    Sketcher.Constraint("Vertical", 0),
    Sketcher.Constraint("Horizontal", 1),
    Sketcher.Constraint("Vertical", 2),
    Sketcher.Constraint("Horizontal", 3),
    Sketcher.Constraint("DistanceX", 1, 1, 1, 2, 8.5),
    Sketcher.Constraint("DistanceX", -1, 1, 0, 2, 16.0),
    Sketcher.Constraint("DistanceY", 0, 1, 0, 2, 0.85),
    Sketcher.Constraint("DistanceY", -1, 1, 0, 2, 1.5),
])
pocket11 = body.newObject("PartDesign::Pocket", "Pocket010")
pocket11.Profile = sketch22
pocket11.Length = 2.5
pocket11.Reversed = True

# Sketch on XZ plane
sketch23 = body.newObject("Sketcher::SketchObject", "Sketch022")
sketch23.AttachmentSupport = (doc.getObject("XZ_Plane"), [""])
sketch23.MapMode = "FlatFace"
sketch23.addGeometry([
    Part.LineSegment(Vector(12, 1.5, 0), Vector(12, 7.5, 0)),
    Part.LineSegment(Vector(12, 7.5, 0), Vector(28, 7.5, 0)),
    Part.LineSegment(Vector(28, 7.5, 0), Vector(28, 1.5, 0)),
    Part.LineSegment(Vector(28, 1.5, 0), Vector(12, 1.5, 0)),
], False)
sketch23.addConstraint([
    Sketcher.Constraint("Coincident", 0, 2, 1, 1),
    Sketcher.Constraint("Coincident", 1, 2, 2, 1),
    Sketcher.Constraint("Coincident", 2, 2, 3, 1),
    Sketcher.Constraint("Coincident", 3, 2, 0, 1),
    Sketcher.Constraint("Vertical", 0),
    Sketcher.Constraint("Horizontal", 1),
    Sketcher.Constraint("Vertical", 2),
    Sketcher.Constraint("Horizontal", 3),
    Sketcher.Constraint("DistanceX", 1, 1, 1, 2, 16.0),
    Sketcher.Constraint("DistanceY", 0, 1, 0, 2, 6.0),
    Sketcher.Constraint("DistanceX", -1, 1, 0, 2, 12.0),
    Sketcher.Constraint("DistanceY", -1, 1, 0, 2, 7.5),
])
pocket12 = body.newObject("PartDesign::Pocket", "Pocket011")
pocket12.Profile = sketch23
pocket12.Length = 2.5
pocket12.Reversed = True

# Sketch on XZ plane
sketch24 = body.newObject("Sketcher::SketchObject", "Sketch023")
sketch24.AttachmentSupport = (doc.getObject("XZ_Plane"), [""])
sketch24.MapMode = "FlatFace"
sketch24.addGeometry([
    Part.LineSegment(Vector(74.5, 0.8, 0), Vector(74.5, 7.3, 0)),
    Part.LineSegment(Vector(74.5, 7.3, 0), Vector(87.25, 7.3, 0)),
    Part.LineSegment(Vector(87.25, 7.3, 0), Vector(87.25, 0.8, 0)),
    Part.LineSegment(Vector(87.25, 0.8, 0), Vector(74.5, 0.8, 0)),
], False)
sketch24.addConstraint([
    Sketcher.Constraint("Coincident", 0, 2, 1, 1),
    Sketcher.Constraint("Coincident", 1, 2, 2, 1),
    Sketcher.Constraint("Coincident", 2, 2, 3, 1),
    Sketcher.Constraint("Coincident", 3, 2, 0, 1),
    Sketcher.Constraint("Vertical", 0),
    Sketcher.Constraint("Horizontal", 1),
    Sketcher.Constraint("Vertical", 2),
    Sketcher.Constraint("Horizontal", 3),
    Sketcher.Constraint("DistanceY", 0, 1, 0, 2, 6.5),
    Sketcher.Constraint("DistanceX", 1, 1, 1, 2, 12.75),
    Sketcher.Constraint("DistanceX", -1, 1, 0, 2, 74.5),
    Sketcher.Constraint("DistanceY", -1, 1, 0, 2, 7.3),
])
pocket13 = body.newObject("PartDesign::Pocket", "Pocket012")
pocket13.Profile = sketch24
pocket13.Length = 2.5
pocket13.Reversed = True

doc.recompute()
